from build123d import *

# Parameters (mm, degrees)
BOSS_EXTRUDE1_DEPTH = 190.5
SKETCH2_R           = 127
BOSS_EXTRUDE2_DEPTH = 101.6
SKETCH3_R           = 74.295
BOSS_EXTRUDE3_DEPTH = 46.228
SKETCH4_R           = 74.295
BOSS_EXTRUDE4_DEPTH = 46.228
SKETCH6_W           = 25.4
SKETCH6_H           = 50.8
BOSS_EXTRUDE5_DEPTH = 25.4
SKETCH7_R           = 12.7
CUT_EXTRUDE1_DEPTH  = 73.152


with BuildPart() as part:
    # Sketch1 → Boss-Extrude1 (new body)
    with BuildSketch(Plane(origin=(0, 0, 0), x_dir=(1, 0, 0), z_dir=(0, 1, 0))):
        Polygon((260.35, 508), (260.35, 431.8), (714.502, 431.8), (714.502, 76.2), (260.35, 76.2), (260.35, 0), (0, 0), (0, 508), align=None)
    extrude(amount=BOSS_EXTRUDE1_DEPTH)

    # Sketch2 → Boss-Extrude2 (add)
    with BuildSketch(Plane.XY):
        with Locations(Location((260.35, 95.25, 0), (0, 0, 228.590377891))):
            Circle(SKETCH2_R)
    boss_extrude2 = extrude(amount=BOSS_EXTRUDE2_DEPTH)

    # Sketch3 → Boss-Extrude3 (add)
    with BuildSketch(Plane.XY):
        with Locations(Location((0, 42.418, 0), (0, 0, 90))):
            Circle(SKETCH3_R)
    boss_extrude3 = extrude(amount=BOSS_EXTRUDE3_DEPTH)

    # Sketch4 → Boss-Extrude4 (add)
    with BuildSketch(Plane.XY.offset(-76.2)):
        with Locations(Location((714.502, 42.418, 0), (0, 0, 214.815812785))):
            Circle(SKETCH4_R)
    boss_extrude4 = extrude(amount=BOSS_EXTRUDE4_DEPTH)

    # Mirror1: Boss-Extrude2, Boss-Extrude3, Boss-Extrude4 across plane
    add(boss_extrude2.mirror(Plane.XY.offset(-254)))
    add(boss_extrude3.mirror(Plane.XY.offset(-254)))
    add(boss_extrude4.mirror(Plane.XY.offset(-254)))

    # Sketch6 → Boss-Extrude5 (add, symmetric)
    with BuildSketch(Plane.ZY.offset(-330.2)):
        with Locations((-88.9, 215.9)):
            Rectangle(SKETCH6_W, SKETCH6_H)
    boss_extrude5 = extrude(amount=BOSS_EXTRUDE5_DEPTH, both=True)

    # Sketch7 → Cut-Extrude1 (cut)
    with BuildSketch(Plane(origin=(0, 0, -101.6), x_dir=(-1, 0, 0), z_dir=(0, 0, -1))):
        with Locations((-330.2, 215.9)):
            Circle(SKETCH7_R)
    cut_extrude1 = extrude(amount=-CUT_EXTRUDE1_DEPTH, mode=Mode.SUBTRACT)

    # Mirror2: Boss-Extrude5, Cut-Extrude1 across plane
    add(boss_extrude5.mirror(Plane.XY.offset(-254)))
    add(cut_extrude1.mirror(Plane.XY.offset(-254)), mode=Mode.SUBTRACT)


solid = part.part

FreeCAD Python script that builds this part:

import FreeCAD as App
import Part
import Sketcher
from FreeCAD import Vector
Q = App.Units.Quantity

doc = App.newDocument("Part")
body = doc.addObject("PartDesign::Body", "Body")

# Sketch on XZ plane
sketch1 = body.newObject("Sketcher::SketchObject", "Sketch")
sketch1.AttachmentSupport = (doc.getObject("XZ_Plane"), [""])
sketch1.MapMode = "FlatFace"
sketch1.addGeometry([
    Part.LineSegment(Vector(260.35, -431.8, 0), Vector(260.35, -508, 0)),  # 0
    Part.LineSegment(Vector(260.35, -508, 0), Vector(0, -508, 0)),  # 1
    Part.LineSegment(Vector(0, -508, 0), Vector(0, 0, 0)),  # 2
    Part.LineSegment(Vector(0, 0, 0), Vector(260.35, 0, 0)),  # 3
    Part.LineSegment(Vector(260.35, 0, 0), Vector(260.35, -76.2, 0)),  # 4
    Part.LineSegment(Vector(260.35, -76.2, 0), Vector(714.502, -76.2, 0)),  # 5
    Part.LineSegment(Vector(714.502, -76.2, 0), Vector(714.502, -431.8, 0)),  # 6
    Part.LineSegment(Vector(714.502, -431.8, 0), Vector(260.35, -431.8, 0)),  # 7
], False)
sketch1.addConstraint([
    Sketcher.Constraint("Coincident", 0, 2, 1, 1),
    Sketcher.Constraint("Coincident", 1, 2, 2, 1),
    Sketcher.Constraint("Coincident", 2, 2, 3, 1),
    Sketcher.Constraint("Coincident", 3, 2, 4, 1),
    Sketcher.Constraint("Coincident", 4, 2, 5, 1),
    Sketcher.Constraint("Coincident", 5, 2, 6, 1),
    Sketcher.Constraint("Coincident", 6, 2, 7, 1),
    Sketcher.Constraint("Coincident", 7, 2, 0, 1),
    Sketcher.Constraint("Vertical", 0),
    Sketcher.Constraint("Horizontal", 1),
    Sketcher.Constraint("Vertical", 2),
    Sketcher.Constraint("Horizontal", 3),
    Sketcher.Constraint("Vertical", 4),
    Sketcher.Constraint("Horizontal", 5),
    Sketcher.Constraint("Vertical", 6),
    Sketcher.Constraint("Horizontal", 7),
    Sketcher.Constraint("Coincident", 2, 2, -1, 1),
    Sketcher.Constraint("Vertical", 0, 2, 3, 2),
    Sketcher.Constraint("Equal", 0, 4),
    Sketcher.Constraint("DistanceY", 0, 2, 0, 1, Q("3 in")),
    Sketcher.Constraint("DistanceY", 2, 1, 2, 2, Q("20 in")),
    Sketcher.Constraint("DistanceX", 1, 2, 1, 1, Q("10.25 in")),
    Sketcher.Constraint("DistanceX", 5, 1, 5, 2, Q("17.88 in")),
])
pad1 = body.newObject("PartDesign::Pad", "Pad")
pad1.Profile = sketch1
pad1.Length = Q("7.5 in")
pad1.Reversed = True

# Sketch on XY plane
sketch2 = body.newObject("Sketcher::SketchObject", "Sketch001")
sketch2.AttachmentSupport = (doc.getObject("XY_Plane"), [""])
sketch2.MapMode = "FlatFace"
sketch2.addGeometry(Part.Circle(Vector(260.35, 95.25, 0), Vector(0, 0, 1), 127), False)
sketch2.addConstraint([
    Sketcher.Constraint("Diameter", 0, Q("10 in")),
    Sketcher.Constraint("DistanceX", -1, 1, 0, 3, Q("10.25 in")),
    Sketcher.Constraint("DistanceY", -1, 1, 0, 3, Q("3.75 in")),
])
pad2 = body.newObject("PartDesign::Pad", "Pad001")
pad2.Profile = sketch2
pad2.Length = Q("4 in")

# Sketch on XY plane
sketch3 = body.newObject("Sketcher::SketchObject", "Sketch002")
sketch3.AttachmentSupport = (doc.getObject("XY_Plane"), [""])
sketch3.MapMode = "FlatFace"
sketch3.addGeometry(Part.Circle(Vector(0, 42.418, 0), Vector(0, 0, 1), 74.295), False)
sketch3.addConstraint([
    Sketcher.Constraint("PointOnObject", 0, 3, -2),
    Sketcher.Constraint("Diameter", 0, Q("5.85 in")),
    Sketcher.Constraint("DistanceY", -1, 1, 0, 3, Q("1.67 in")),
])
pad3 = body.newObject("PartDesign::Pad", "Pad002")
pad3.Profile = sketch3
pad3.Length = Q("1.82 in")

# Sketch on XY plane
sketch4 = body.newObject("Sketcher::SketchObject", "Sketch003")
sketch4.AttachmentSupport = (doc.getObject("XY_Plane"), [""])
sketch4.MapMode = "FlatFace"
sketch4.AttachmentOffset = App.Placement(Vector(0, 0, -3 * 25.4), App.Rotation())
sketch4.addGeometry(Part.Circle(Vector(714.502, 42.418, 0), Vector(0, 0, 1), 74.295), False)
sketch4.addConstraint([
    Sketcher.Constraint("Diameter", 0, Q("5.85 in")),
    Sketcher.Constraint("DistanceX", -1, 1, 0, 3, Q("28.13 in")),
    Sketcher.Constraint("DistanceY", -1, 1, 0, 3, Q("1.67 in")),
])
pad4 = body.newObject("PartDesign::Pad", "Pad003")
pad4.Profile = sketch4
pad4.Length = Q("1.82 in")
doc.recompute()

datumplane = body.newObject("PartDesign::Plane", "DatumPlane")
datumplane.AttachmentSupport = (doc.getObject("XY_Plane"), [""])
datumplane.MapMode = "FlatFace"
datumplane.AttachmentOffset = App.Placement(Vector(0, 0, -10 * 25.4), App.Rotation())
mirrored = body.newObject("PartDesign::Mirrored", "Mirrored")
mirrored.Originals = [pad2, pad3, pad4]
mirrored.MirrorPlane = (datumplane, [""])
body.Tip = mirrored

# Sketch on YZ plane
sketch5 = body.newObject("Sketcher::SketchObject", "Sketch004")
sketch5.AttachmentSupport = (doc.getObject("YZ_Plane"), [""])
sketch5.MapMode = "FlatFace"
sketch5.AttachmentOffset = App.Placement(Vector(0, 0, 13 * 25.4), App.Rotation())
sketch5.addGeometry([
    Part.LineSegment(Vector(241.3, -101.6, 0), Vector(190.5, -101.6, 0)),
    Part.LineSegment(Vector(190.5, -101.6, 0), Vector(190.5, -76.2, 0)),
    Part.LineSegment(Vector(190.5, -76.2, 0), Vector(241.3, -76.2, 0)),
    Part.LineSegment(Vector(241.3, -76.2, 0), Vector(241.3, -101.6, 0)),
], False)
sketch5.addConstraint([
    Sketcher.Constraint("Coincident", 0, 2, 1, 1),
    Sketcher.Constraint("Coincident", 1, 2, 2, 1),
    Sketcher.Constraint("Coincident", 2, 2, 3, 1),
    Sketcher.Constraint("Coincident", 3, 2, 0, 1),
    Sketcher.Constraint("Horizontal", 0),
    Sketcher.Constraint("Vertical", 1),
    Sketcher.Constraint("Horizontal", 2),
    Sketcher.Constraint("Vertical", 3),
    Sketcher.Constraint("DistanceX", 0, 2, 0, 1, Q("2 in")),
    Sketcher.Constraint("DistanceY", 1, 1, 1, 2, Q("1 in")),
    Sketcher.Constraint("DistanceY", 0, 2, -1, 1, Q("4 in")),
    Sketcher.Constraint("DistanceX", -1, 1, 0, 2, Q("7.5 in")),
])
pad5 = body.newObject("PartDesign::Pad", "Pad004")
pad5.Profile = sketch5
pad5.Length = Q("2 in")
pad5.Midplane = True

# Sketch on XY plane
sketch6 = body.newObject("Sketcher::SketchObject", "Sketch005")
sketch6.AttachmentSupport = (doc.getObject("XY_Plane"), [""])
sketch6.MapMode = "FlatFace"
sketch6.AttachmentOffset = App.Placement(Vector(0, 0, -4 * 25.4), App.Rotation())
sketch6.addGeometry(Part.Circle(Vector(330.2, 215.9, 0), Vector(0, 0, 1), 12.7), False)
sketch6.addConstraint([
    Sketcher.Constraint("Diameter", 0, Q("1 in")),
    Sketcher.Constraint("DistanceX", -1, 1, 0, 3, Q("13 in")),
    Sketcher.Constraint("DistanceY", -1, 1, 0, 3, Q("8.5 in")),
])
pocket1 = body.newObject("PartDesign::Pocket", "Pocket")
pocket1.Profile = sketch6
pocket1.Length = Q("2.88 in")
pocket1.Reversed = True
doc.recompute()

datumplane2 = body.newObject("PartDesign::Plane", "DatumPlane001")
datumplane2.AttachmentSupport = (doc.getObject("XY_Plane"), [""])
datumplane2.MapMode = "FlatFace"
datumplane2.AttachmentOffset = App.Placement(Vector(0, 0, -10 * 25.4), App.Rotation())
mirrored2 = body.newObject("PartDesign::Mirrored", "Mirrored001")
mirrored2.Originals = [pad5, pocket1]
mirrored2.MirrorPlane = (datumplane2, [""])
body.Tip = mirrored2

doc.recompute()
